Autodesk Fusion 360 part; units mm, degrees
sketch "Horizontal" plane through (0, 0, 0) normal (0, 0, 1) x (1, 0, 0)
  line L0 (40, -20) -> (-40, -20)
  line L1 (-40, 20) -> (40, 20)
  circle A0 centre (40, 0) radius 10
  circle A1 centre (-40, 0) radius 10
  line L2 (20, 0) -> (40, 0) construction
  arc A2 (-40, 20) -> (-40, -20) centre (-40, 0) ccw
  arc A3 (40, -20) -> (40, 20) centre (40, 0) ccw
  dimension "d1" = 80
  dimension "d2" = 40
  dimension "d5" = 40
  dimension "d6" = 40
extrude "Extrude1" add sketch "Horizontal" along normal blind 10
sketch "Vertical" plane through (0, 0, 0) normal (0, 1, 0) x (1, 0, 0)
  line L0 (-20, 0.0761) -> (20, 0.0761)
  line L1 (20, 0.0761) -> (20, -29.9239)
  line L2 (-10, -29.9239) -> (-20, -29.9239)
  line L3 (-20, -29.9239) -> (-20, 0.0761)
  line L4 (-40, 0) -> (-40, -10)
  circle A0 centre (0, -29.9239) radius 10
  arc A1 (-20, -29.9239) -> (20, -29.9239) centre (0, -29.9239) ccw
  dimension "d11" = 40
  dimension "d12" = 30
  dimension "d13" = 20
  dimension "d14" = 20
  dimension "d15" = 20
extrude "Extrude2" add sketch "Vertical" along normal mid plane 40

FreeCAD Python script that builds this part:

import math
import FreeCAD as App
import Part
import Sketcher
Q = App.Units.Quantity

doc = App.newDocument("Part")
body = doc.addObject("PartDesign::Body", "Body")

sketch1 = doc.addObject("Sketcher::SketchObject", "Sketch")
body.addObject(sketch1)
sketch1.AttachmentSupport = (doc.XY_Plane, [""])
sketch1.MapMode = "FlatFace"
sketch1.addGeometry([
    Part.LineSegment(App.Vector(-40, -20, 0), App.Vector(40, -20, 0)),
    Part.ArcOfCircle(Part.Circle(App.Vector(40, 0, 0), App.Vector(0, 0, 1), 20), math.radians(-90), math.radians(90)),
    Part.LineSegment(App.Vector(40, 20, 0), App.Vector(-40, 20, 0)),
    Part.ArcOfCircle(Part.Circle(App.Vector(-40, 0, 0), App.Vector(0, 0, 1), 20), math.radians(90), math.radians(270)),
    Part.Circle(App.Vector(-40, 0, 0), App.Vector(0, 0, 1), 10),
    Part.Circle(App.Vector(40, 0, 0), App.Vector(0, 0, 1), 10),
], False)
sketch1.addConstraint([
    Sketcher.Constraint("Tangent", 0, 2, 1, 1),
    Sketcher.Constraint("Tangent", 1, 2, 2, 1),
    Sketcher.Constraint("Tangent", 2, 2, 3, 1),
    Sketcher.Constraint("Tangent", 3, 2, 0, 1),
    Sketcher.Constraint("Horizontal", 0),
    Sketcher.Constraint("Horizontal", 2),
    Sketcher.Constraint("Coincident", 4, 3, 3, 3),
    Sketcher.Constraint("Coincident", 5, 3, 1, 3),
    Sketcher.Constraint("Equal", 4, 5),
    Sketcher.Constraint("Symmetric", 1, 3, 3, 3, -1, 1),
    Sketcher.Constraint("Radius", 1, Q("20 mm")),
    Sketcher.Constraint("DistanceX", 0, 1, 0, 2, Q("80 mm")),
    Sketcher.Constraint("Diameter", 4, Q("20 mm")),
])
pad1 = doc.addObject("PartDesign::Pad", "Pad")
body.addObject(pad1)
pad1.Profile = sketch1
pad1.Length = 10

sketch2 = doc.addObject("Sketcher::SketchObject", "Sketch001")
body.addObject(sketch2)
sketch2.AttachmentSupport = (doc.XZ_Plane, [""])
sketch2.MapMode = "FlatFace"
sketch2.addGeometry([
    Part.LineSegment(App.Vector(20, -0.0761, 0), App.Vector(-20, -0.0761, 0)),
    Part.LineSegment(App.Vector(-20, -0.0761, 0), App.Vector(-20, 29.9239, 0)),
    Part.ArcOfCircle(Part.Circle(App.Vector(0, 29.9239, 0), App.Vector(0, 0, 1), 20), math.radians(0), math.radians(180)),
    Part.LineSegment(App.Vector(20, 29.9239, 0), App.Vector(20, -0.0761, 0)),
    Part.Circle(App.Vector(0, 29.9239, 0), App.Vector(0, 0, 1), 10),
], False)
sketch2.addConstraint([
    Sketcher.Constraint("Coincident", 0, 2, 1, 1),
    Sketcher.Constraint("Tangent", 1, 2, 2, 2),
    Sketcher.Constraint("Tangent", 2, 1, 3, 1),
    Sketcher.Constraint("Coincident", 3, 2, 0, 1),
    Sketcher.Constraint("Horizontal", 0),
    Sketcher.Constraint("Vertical", 1),
    Sketcher.Constraint("Vertical", 3),
    Sketcher.Constraint("Coincident", 4, 3, 2, 3),
    Sketcher.Constraint("PointOnObject", 2, 3, -2),
    Sketcher.Constraint("Diameter", 4, Q("20 mm")),
    Sketcher.Constraint("Radius", 2, Q("20 mm")),
    Sketcher.Constraint("DistanceY", 1, 1, 1, 2, Q("30 mm")),
    Sketcher.Constraint("DistanceY", -1, 1, 2, 3, Q("29.924 mm")),
])
pad2 = doc.addObject("PartDesign::Pad", "Pad001")
body.addObject(pad2)
pad2.Profile = sketch2
pad2.Length = 40
pad2.Midplane = True

doc.recompute()
